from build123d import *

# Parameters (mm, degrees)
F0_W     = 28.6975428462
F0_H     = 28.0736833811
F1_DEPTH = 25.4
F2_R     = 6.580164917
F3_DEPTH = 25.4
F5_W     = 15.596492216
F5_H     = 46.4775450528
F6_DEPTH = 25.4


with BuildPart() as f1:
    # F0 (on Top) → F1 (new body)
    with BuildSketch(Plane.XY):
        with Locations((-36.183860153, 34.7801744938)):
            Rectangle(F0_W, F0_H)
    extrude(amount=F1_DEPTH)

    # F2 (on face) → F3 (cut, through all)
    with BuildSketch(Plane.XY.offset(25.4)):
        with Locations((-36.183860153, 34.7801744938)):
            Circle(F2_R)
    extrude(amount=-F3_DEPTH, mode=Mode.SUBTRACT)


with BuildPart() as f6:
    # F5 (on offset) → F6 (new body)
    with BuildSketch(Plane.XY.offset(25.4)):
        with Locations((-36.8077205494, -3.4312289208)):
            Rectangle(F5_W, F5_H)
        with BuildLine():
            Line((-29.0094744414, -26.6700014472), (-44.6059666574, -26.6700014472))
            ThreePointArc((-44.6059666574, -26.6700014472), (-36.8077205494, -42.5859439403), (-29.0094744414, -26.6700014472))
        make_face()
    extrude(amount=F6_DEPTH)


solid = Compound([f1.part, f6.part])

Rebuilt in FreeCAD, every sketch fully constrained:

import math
import FreeCAD as App
import Part
import Sketcher
from FreeCAD import Vector
Q = App.Units.Quantity


def add_polygon(sketch, points):
    """Adds a closed chain of lines whose ends are joined by coincident constraints."""
    first, n = sketch.GeometryCount, len(points)
    for a, b in zip(points, points[1:] + points[:1]):
        sketch.addGeometry(Part.LineSegment(App.Vector(*a, 0), App.Vector(*b, 0)), False)
    for i in range(n):
        sketch.addConstraint(Sketcher.Constraint("Coincident", first + i, 2, first + (i + 1) % n, 1))

doc = App.newDocument("Part")
body = doc.addObject("PartDesign::Body", "Body")

# Sketch on XY plane
sketch1 = doc.addObject("Sketcher::SketchObject", "Sketch")
body.addObject(sketch1)
sketch1.AttachmentSupport = (doc.XY_Plane, [""])
sketch1.MapMode = "FlatFace"
add_polygon(sketch1, [(-51, 49), (-51, 21), (-22, 21), (-22, 49)])  # lines 0-3
sketch1.addConstraint(Sketcher.Constraint("Vertical", 0))
sketch1.addConstraint(Sketcher.Constraint("Horizontal", 1))
sketch1.addConstraint(Sketcher.Constraint("Vertical", 2))
sketch1.addConstraint(Sketcher.Constraint("Horizontal", 3))
sketch1.addConstraint(Sketcher.Constraint("DistanceX", 1, 1, 1, 2, Q("28.697543 mm")))
sketch1.addConstraint(Sketcher.Constraint("DistanceY", 0, 2, 0, 1, Q("28.073683 mm")))
sketch1.addConstraint(Sketcher.Constraint("DistanceX", 0, 2, -1, 1, Q("50.532632 mm")))
sketch1.addConstraint(Sketcher.Constraint("DistanceY", -1, 1, 0, 2, Q("20.743333 mm")))
pad1 = doc.addObject("PartDesign::Pad", "Pad")
body.addObject(pad1)
pad1.Profile = sketch1
pad1.Length = Q("1 in")

# Sketch on XY plane
sketch2 = doc.addObject("Sketcher::SketchObject", "Sketch001")
body.addObject(sketch2)
sketch2.AttachmentSupport = (doc.XY_Plane, [""])
sketch2.MapMode = "FlatFace"
sketch2.AttachmentOffset = App.Placement(Vector(0, 0, 1 * 25.4), App.Rotation())
sketch2.addGeometry(Part.Circle(Vector(-36, 35, 0), Vector(0, 0, 1), 7), False)
sketch2.addConstraint(Sketcher.Constraint("Diameter", 0, Q("13.16033 mm")))
sketch2.addConstraint(Sketcher.Constraint("DistanceX", 0, 3, -1, 1, Q("36.18386 mm")))
sketch2.addConstraint(Sketcher.Constraint("DistanceY", -1, 1, 0, 3, Q("34.780174 mm")))
pocket1 = doc.addObject("PartDesign::Pocket", "Pocket")
body.addObject(pocket1)
pocket1.Profile = sketch2
pocket1.Type = "ThroughAll"
body2 = doc.addObject("PartDesign::Body", "Body001")

# Sketch on XY plane
sketch3 = doc.addObject("Sketcher::SketchObject", "Sketch002")
body2.addObject(sketch3)
sketch3.AttachmentSupport = (doc.getObject("XY_Plane001"), [""])
sketch3.MapMode = "FlatFace"
sketch3.AttachmentOffset = App.Placement(Vector(0, 0, 1 * 25.4), App.Rotation())
sketch3.addGeometry(Part.LineSegment(Vector(-45, 20, 0), Vector(-45, -27, 0)), False)
sketch3.addGeometry(Part.ArcOfCircle(Part.Circle(Vector(-37, -33, 0), Vector(0, 0, 1), 10), math.radians(142), math.radians(398)), False)
sketch3.addGeometry(Part.LineSegment(Vector(-29, -27, 0), Vector(-29, 20, 0)), False)
sketch3.addGeometry(Part.LineSegment(Vector(-29, 20, 0), Vector(-45, 20, 0)), False)
sketch3.addConstraint(Sketcher.Constraint("Coincident", 0, 2, 1, 1))
sketch3.addConstraint(Sketcher.Constraint("Coincident", 1, 2, 2, 1))
sketch3.addConstraint(Sketcher.Constraint("Coincident", 2, 2, 3, 1))
sketch3.addConstraint(Sketcher.Constraint("Coincident", 3, 2, 0, 1))
sketch3.addConstraint(Sketcher.Constraint("Vertical", 0))
sketch3.addConstraint(Sketcher.Constraint("Vertical", 2))
sketch3.addConstraint(Sketcher.Constraint("Horizontal", 3))
sketch3.addConstraint(Sketcher.Constraint("Horizontal", 0, 2, 1, 2))
sketch3.addConstraint(Sketcher.Constraint("DistanceY", 0, 2, -1, 1, Q("1.0500001 in")))
sketch3.addConstraint(Sketcher.Constraint("Radius", 1, Q("9.868403 mm")))
sketch3.addConstraint(Sketcher.Constraint("DistanceX", 3, 2, 3, 1, Q("15.596492 mm")))
sketch3.addConstraint(Sketcher.Constraint("DistanceY", 0, 2, 0, 1, Q("46.477545 mm")))
sketch3.addConstraint(Sketcher.Constraint("DistanceX", 1, 3, -1, 1, Q("36.807721 mm")))
pad2 = doc.addObject("PartDesign::Pad", "Pad001")
body2.addObject(pad2)
pad2.Profile = sketch3
pad2.Length = Q("1 in")

doc.recompute()
